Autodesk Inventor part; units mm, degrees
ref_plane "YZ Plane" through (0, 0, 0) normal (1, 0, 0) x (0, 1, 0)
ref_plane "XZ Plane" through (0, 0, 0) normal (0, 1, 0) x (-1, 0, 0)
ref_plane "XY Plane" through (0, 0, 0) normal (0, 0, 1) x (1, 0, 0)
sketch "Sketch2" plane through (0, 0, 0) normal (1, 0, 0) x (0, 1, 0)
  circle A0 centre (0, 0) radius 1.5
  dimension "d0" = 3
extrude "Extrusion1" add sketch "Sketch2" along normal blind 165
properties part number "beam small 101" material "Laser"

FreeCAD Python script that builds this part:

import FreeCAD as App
import Part
import Sketcher

V = App.Vector

doc = App.newDocument("Part")
params = doc.addObject("Spreadsheet::Sheet", "Params")
for row, (alias, value) in enumerate([
    ("sketch1_diameter", "3 mm"),
    ("pad1_length", "165 mm"),
], start=1):
    params.set(f"A{row}", alias)
    params.set(f"B{row}", "=" + value)
    params.setAlias(f"B{row}", alias)

body = doc.addObject("PartDesign::Body", "Body")

sketch1 = body.newObject("Sketcher::SketchObject", "Sketch")
sketch1.AttachmentSupport = (doc.getObject("YZ_Plane"), [""])
sketch1.MapMode = "FlatFace"
sketch1.addGeometry(Part.Circle(V(0, 0, 0), V(0, 0, 1), 1.5), False)
sketch1.addConstraint(Sketcher.Constraint("Coincident", 0, 3, -1, 1))
sketch1.addConstraint(Sketcher.Constraint("Diameter", 0, 3.0))
sketch1.setExpression("Constraints[1]", "Params.sketch1_diameter")
pad1 = body.newObject("PartDesign::Pad", "Pad")
pad1.Profile = sketch1
pad1.setExpression("Length", "Params.pad1_length")

doc.recompute()
